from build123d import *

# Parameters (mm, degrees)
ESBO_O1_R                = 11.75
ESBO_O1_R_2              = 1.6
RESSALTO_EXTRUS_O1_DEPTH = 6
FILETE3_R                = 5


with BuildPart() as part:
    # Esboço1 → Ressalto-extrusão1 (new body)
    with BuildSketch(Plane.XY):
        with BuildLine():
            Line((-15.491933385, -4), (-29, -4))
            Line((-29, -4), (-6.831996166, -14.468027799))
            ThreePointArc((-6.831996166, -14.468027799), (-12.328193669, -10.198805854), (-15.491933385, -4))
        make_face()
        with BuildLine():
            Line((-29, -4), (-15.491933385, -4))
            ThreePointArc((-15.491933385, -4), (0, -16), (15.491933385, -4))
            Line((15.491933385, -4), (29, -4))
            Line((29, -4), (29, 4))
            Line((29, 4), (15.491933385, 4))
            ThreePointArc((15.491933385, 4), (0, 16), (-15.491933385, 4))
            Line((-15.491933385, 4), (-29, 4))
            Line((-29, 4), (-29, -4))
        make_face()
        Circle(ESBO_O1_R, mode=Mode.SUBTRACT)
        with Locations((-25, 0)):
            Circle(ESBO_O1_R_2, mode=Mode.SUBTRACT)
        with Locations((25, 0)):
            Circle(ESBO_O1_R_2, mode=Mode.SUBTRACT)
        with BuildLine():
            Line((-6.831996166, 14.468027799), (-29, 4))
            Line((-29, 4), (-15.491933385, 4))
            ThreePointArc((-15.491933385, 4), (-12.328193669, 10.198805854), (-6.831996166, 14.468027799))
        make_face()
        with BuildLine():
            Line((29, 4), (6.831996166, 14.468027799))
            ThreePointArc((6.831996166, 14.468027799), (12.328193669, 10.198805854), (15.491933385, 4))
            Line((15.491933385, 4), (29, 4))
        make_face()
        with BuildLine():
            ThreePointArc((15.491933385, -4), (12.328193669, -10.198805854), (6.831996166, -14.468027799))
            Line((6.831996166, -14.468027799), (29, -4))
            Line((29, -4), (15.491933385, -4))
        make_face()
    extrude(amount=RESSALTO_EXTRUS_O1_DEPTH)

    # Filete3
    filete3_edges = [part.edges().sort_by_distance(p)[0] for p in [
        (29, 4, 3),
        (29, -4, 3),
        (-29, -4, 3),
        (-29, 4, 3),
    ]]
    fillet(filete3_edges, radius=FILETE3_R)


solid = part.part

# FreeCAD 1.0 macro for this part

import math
import FreeCAD as App
import Part
import Sketcher
Q = App.Units.Quantity


def edges_at(feature, points):
    """Names of the edges that pass closest to the given points."""
    edges = feature.Shape.Edges
    near = lambda p: min(range(len(edges)), key=lambda i: edges[i].distToShape(Part.Vertex(*p))[0])
    return sorted({f"Edge{near(p) + 1}" for p in points})

doc = App.newDocument("Part")
body = doc.addObject("PartDesign::Body", "Body")

# Sketch on XY plane
sketch1 = body.newObject("Sketcher::SketchObject", "Sketch")
sketch1.AttachmentSupport = (doc.getObject("XY_Plane"), [""])
sketch1.MapMode = "FlatFace"
sketch1.addGeometry([
    Part.LineSegment(App.Vector(-29, -4, 0), App.Vector(-6.8, -14.5, 0)),  # 0
    Part.ArcOfCircle(Part.Circle(App.Vector(0, 0, 0), App.Vector(0, 0, 1), 16), math.radians(-115), math.radians(-65)),  # 1
    Part.LineSegment(App.Vector(6.8, -14.5, 0), App.Vector(29, -4, 0)),  # 2
    Part.LineSegment(App.Vector(29, -4, 0), App.Vector(29, 4, 0)),  # 3
    Part.LineSegment(App.Vector(29, 4, 0), App.Vector(6.8, 14.5, 0)),  # 4
    Part.ArcOfCircle(Part.Circle(App.Vector(0, 0, 0), App.Vector(0, 0, 1), 16), math.radians(65), math.radians(115)),  # 5
    Part.LineSegment(App.Vector(-6.8, 14.5, 0), App.Vector(-29, 4, 0)),  # 6
    Part.LineSegment(App.Vector(-29, 4, 0), App.Vector(-29, -4, 0)),  # 7
    Part.Circle(App.Vector(-25, 0, 0), App.Vector(0, 0, 1), 1.6),  # 8
    Part.Circle(App.Vector(0, 0, 0), App.Vector(0, 0, 1), 11.8),  # 9
    Part.Circle(App.Vector(25, 0, 0), App.Vector(0, 0, 1), 1.6),  # 10
], False)
sketch1.addConstraint([
    Sketcher.Constraint("Tangent", 0, 2, 1, 1),
    Sketcher.Constraint("Tangent", 1, 2, 2, 1),
    Sketcher.Constraint("Coincident", 2, 2, 3, 1),
    Sketcher.Constraint("Coincident", 3, 2, 4, 1),
    Sketcher.Constraint("Tangent", 4, 2, 5, 1),
    Sketcher.Constraint("Tangent", 5, 2, 6, 1),
    Sketcher.Constraint("Coincident", 6, 2, 7, 1),
    Sketcher.Constraint("Coincident", 7, 2, 0, 1),
    Sketcher.Constraint("Vertical", 3),
    Sketcher.Constraint("Vertical", 7),
    Sketcher.Constraint("Coincident", 1, 3, -1, 1),
    Sketcher.Constraint("Coincident", 5, 3, -1, 1),
    Sketcher.Constraint("Coincident", 9, 3, -1, 1),
    Sketcher.Constraint("Equal", 1, 5),
    Sketcher.Constraint("Equal", 8, 10),
    Sketcher.Constraint("Symmetric", 8, 3, 10, 3, -1, 1),
    Sketcher.Constraint("Symmetric", 2, 2, 6, 2, -1, 1),
    Sketcher.Constraint("PointOnObject", 8, 3, -1),
    Sketcher.Constraint("Parallel", 0, 4),
    Sketcher.Constraint("Horizontal", 0, 2, 1, 2),
    Sketcher.Constraint("Radius", 1, Q("16 mm")),
    Sketcher.Constraint("Diameter", 8, Q("3.2 mm")),
    Sketcher.Constraint("Diameter", 9, Q("23.5 mm")),
    Sketcher.Constraint("DistanceY", 3, 1, 3, 2, Q("8 mm")),
    Sketcher.Constraint("DistanceX", 8, 3, -1, 1, Q("25 mm")),
    Sketcher.Constraint("DistanceX", -1, 1, 2, 2, Q("29 mm")),
])
pad1 = body.newObject("PartDesign::Pad", "Pad")
pad1.Profile = sketch1
pad1.Length = 6
doc.recompute()

fillet = body.newObject("PartDesign::Fillet", "Fillet")
fillet.Base = (pad1, edges_at(pad1, [
    (29, 4, 3),
    (29, -4, 3),
    (-29, -4, 3),
    (-29, 4, 3),
]))
fillet.Radius = 5

doc.recompute()
